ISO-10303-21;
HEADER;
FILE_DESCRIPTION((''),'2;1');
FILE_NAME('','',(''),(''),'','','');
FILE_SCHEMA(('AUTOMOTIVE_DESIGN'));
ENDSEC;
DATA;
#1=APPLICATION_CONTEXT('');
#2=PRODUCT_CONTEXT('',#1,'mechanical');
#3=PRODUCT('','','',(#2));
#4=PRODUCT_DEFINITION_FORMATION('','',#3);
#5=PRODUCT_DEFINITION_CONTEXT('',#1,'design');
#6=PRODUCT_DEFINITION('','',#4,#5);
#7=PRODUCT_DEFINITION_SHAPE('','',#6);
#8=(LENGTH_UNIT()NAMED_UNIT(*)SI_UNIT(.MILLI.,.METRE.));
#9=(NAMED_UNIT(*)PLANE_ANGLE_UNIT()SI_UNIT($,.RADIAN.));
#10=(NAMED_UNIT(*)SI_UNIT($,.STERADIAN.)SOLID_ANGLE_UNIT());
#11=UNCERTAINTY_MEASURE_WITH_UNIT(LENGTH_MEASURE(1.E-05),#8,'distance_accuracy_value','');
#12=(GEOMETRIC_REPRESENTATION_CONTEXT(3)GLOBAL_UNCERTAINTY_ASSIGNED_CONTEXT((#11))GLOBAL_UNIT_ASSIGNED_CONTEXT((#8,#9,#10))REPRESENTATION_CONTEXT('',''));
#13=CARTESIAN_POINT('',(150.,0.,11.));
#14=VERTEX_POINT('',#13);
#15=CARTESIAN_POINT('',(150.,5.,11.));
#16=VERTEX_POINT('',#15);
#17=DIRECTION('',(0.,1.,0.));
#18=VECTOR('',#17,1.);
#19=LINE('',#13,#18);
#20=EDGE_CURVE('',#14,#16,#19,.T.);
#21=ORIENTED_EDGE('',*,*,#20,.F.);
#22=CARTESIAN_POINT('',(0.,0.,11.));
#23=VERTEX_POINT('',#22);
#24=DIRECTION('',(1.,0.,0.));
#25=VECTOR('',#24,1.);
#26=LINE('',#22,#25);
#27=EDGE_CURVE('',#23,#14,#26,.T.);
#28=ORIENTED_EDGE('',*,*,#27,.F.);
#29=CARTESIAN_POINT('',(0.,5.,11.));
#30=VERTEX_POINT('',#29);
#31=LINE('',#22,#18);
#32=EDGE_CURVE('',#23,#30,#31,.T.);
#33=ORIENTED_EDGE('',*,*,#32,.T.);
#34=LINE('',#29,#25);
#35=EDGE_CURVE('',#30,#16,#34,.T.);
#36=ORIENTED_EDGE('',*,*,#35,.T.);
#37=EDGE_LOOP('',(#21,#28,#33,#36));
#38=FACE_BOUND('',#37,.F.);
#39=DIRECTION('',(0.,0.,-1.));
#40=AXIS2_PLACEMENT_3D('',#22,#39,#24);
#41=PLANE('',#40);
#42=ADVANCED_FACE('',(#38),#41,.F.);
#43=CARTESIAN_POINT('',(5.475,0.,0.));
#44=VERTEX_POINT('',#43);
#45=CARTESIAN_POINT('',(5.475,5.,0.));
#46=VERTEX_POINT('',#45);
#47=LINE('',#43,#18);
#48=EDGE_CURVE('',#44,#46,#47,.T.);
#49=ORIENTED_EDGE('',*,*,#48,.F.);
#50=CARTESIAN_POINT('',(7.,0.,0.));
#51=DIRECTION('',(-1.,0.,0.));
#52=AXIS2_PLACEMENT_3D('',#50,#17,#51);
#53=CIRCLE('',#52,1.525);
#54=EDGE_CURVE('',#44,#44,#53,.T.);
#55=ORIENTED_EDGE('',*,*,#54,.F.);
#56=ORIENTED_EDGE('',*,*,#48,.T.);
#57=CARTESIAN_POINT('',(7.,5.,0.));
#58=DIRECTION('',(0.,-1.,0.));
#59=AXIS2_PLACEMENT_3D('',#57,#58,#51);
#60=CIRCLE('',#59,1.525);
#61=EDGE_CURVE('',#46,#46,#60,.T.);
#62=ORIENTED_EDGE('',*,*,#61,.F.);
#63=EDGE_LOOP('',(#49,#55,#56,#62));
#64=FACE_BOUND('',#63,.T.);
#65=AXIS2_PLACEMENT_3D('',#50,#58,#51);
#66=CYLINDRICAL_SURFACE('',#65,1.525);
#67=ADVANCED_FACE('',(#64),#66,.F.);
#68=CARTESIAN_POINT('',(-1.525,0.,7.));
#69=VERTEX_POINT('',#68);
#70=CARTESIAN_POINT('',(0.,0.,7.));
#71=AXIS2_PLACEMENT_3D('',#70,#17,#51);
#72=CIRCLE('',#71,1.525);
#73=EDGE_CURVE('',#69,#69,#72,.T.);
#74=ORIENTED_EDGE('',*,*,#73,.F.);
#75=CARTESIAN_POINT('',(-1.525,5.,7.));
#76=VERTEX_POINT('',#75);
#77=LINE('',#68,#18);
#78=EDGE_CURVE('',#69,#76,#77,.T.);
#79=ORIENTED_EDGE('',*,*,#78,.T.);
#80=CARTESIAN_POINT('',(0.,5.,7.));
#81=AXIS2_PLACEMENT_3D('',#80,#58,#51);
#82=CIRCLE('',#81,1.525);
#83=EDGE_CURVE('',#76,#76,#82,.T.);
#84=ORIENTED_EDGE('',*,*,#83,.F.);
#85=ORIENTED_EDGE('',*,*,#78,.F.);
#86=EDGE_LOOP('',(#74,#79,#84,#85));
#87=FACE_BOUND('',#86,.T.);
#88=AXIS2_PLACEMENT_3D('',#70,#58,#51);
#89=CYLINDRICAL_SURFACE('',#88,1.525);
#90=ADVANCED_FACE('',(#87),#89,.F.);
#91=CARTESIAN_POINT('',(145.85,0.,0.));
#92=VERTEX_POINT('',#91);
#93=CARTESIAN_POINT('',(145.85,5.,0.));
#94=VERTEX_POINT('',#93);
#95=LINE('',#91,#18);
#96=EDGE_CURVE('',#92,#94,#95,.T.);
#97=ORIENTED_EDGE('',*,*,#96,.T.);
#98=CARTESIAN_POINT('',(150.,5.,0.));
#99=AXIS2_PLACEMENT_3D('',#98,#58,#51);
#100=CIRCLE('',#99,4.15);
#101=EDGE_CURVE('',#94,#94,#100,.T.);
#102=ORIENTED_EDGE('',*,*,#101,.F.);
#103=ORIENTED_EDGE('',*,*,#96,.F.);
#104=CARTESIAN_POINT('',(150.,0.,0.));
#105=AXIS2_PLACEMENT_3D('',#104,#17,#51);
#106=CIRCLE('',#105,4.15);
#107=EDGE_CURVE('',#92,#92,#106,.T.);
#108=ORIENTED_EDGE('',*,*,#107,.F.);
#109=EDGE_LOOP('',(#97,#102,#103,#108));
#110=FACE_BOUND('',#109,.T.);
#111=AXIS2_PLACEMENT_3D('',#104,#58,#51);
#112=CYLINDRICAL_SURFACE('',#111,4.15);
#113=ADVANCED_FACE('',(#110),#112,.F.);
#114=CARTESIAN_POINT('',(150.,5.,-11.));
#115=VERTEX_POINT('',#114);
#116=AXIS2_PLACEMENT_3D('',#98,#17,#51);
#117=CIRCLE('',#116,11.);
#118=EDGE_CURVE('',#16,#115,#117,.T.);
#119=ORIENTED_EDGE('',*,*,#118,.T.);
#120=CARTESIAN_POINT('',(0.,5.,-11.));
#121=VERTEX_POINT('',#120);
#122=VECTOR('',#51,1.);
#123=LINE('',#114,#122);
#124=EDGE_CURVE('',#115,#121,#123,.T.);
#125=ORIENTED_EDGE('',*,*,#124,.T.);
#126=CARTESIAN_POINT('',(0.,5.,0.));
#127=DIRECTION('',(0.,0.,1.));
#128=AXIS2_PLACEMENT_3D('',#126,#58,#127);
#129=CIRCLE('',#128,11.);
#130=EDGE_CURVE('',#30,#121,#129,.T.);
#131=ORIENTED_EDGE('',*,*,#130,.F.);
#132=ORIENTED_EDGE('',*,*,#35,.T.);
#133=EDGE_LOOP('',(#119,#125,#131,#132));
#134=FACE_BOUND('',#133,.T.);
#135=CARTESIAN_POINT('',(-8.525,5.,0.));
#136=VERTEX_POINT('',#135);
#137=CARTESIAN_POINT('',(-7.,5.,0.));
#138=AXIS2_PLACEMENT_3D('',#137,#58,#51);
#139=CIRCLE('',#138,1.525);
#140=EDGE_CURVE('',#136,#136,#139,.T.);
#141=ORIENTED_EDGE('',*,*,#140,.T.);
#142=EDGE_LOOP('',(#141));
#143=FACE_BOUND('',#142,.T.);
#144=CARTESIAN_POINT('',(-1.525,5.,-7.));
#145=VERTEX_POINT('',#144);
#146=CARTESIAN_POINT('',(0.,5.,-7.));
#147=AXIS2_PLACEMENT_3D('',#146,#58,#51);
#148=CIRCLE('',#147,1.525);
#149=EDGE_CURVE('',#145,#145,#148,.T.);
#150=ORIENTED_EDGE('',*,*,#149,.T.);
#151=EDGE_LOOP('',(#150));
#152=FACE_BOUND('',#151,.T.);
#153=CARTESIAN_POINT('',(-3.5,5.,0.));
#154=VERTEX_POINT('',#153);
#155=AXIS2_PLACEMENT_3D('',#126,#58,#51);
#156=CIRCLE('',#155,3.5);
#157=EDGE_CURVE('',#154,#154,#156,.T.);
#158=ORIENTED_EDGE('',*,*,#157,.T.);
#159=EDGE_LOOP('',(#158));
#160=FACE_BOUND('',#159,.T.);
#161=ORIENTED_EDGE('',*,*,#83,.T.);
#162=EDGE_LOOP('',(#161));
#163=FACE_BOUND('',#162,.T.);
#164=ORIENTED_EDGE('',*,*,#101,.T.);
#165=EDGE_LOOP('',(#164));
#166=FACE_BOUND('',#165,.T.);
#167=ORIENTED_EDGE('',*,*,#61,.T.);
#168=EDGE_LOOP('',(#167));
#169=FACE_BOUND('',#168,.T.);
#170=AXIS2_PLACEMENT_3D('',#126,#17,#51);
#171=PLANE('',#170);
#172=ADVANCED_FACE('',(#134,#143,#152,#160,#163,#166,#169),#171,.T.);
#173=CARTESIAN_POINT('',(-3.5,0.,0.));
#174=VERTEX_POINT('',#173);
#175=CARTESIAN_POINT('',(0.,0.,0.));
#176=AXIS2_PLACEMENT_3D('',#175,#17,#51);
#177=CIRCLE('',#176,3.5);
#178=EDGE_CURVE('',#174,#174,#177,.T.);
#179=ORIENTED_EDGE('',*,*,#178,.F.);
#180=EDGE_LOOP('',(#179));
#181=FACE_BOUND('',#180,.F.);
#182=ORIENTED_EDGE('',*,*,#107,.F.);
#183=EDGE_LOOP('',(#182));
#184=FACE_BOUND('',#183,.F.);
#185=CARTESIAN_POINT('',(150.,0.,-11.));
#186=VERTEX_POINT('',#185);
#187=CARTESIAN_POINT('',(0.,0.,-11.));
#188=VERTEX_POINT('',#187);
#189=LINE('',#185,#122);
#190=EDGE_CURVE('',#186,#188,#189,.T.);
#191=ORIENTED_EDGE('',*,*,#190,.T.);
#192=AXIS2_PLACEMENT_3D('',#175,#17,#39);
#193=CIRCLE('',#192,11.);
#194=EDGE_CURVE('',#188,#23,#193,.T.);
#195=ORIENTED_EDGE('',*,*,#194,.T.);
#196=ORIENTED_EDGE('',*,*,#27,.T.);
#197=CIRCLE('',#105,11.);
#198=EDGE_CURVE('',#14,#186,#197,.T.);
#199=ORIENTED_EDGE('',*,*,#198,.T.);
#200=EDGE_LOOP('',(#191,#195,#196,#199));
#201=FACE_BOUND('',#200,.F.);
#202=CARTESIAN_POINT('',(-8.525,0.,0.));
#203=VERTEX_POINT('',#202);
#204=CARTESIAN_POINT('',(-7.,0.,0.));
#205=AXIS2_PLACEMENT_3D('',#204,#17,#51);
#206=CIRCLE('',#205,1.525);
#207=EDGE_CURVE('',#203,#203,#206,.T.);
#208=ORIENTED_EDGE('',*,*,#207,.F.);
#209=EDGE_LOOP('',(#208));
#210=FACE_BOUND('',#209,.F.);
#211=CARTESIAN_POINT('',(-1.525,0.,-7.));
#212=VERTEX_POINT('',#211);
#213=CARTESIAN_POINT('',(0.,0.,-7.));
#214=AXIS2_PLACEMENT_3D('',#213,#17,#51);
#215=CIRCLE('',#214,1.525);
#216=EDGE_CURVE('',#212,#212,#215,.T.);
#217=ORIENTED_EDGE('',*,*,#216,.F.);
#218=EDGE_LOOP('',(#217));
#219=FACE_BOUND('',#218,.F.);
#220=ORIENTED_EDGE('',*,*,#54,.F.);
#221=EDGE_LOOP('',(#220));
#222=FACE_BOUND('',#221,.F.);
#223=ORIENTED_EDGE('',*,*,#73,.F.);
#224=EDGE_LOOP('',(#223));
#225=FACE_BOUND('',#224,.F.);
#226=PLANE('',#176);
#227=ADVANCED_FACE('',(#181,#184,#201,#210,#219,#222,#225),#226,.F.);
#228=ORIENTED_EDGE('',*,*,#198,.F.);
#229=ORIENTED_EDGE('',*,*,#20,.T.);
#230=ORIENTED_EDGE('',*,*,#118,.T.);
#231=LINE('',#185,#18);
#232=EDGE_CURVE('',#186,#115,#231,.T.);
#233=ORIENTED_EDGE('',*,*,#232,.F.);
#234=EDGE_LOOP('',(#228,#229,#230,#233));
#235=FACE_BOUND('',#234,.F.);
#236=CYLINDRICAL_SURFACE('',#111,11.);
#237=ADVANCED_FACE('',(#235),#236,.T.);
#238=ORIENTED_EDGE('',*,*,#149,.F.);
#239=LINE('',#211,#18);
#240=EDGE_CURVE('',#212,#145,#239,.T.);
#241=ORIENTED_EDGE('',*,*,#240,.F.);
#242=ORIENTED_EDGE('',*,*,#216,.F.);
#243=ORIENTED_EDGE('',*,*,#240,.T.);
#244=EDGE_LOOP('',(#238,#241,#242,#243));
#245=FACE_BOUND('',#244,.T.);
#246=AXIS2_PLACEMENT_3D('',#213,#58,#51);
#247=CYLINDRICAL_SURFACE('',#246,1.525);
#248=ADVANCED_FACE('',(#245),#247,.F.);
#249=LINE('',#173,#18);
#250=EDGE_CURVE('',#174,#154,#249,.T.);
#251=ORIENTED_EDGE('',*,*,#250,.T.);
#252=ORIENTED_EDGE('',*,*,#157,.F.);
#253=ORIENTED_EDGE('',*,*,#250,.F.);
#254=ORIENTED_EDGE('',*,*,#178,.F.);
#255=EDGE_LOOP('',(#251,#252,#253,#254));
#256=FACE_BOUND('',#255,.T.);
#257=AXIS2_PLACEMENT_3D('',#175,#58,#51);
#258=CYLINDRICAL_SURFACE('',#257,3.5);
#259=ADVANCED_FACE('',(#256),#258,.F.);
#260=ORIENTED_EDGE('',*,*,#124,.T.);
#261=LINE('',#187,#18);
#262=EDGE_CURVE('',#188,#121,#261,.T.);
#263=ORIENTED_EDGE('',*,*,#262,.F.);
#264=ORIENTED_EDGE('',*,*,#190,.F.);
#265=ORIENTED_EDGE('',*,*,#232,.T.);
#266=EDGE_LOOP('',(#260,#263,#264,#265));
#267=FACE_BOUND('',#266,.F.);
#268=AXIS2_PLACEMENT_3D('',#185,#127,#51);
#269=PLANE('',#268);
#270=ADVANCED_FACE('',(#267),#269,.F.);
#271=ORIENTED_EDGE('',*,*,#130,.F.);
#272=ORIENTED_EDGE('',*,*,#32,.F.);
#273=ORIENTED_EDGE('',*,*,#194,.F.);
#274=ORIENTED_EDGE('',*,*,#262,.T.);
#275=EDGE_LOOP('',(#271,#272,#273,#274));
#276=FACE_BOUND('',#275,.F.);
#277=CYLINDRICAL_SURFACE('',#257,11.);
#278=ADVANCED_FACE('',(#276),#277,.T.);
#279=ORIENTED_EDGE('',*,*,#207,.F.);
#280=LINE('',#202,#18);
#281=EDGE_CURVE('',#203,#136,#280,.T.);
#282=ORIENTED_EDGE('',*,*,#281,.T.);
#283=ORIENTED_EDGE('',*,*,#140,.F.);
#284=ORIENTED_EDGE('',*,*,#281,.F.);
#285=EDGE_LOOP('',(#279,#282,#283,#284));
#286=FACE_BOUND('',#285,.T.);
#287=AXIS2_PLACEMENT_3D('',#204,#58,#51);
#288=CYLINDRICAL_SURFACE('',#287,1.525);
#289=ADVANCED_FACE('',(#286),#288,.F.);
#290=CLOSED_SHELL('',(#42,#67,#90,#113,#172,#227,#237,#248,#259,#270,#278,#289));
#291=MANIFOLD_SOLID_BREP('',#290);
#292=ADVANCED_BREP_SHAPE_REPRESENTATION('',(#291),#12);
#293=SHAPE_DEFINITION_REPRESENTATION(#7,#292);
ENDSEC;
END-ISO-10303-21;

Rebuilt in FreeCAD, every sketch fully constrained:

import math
import FreeCAD as App
import Part
import Sketcher

V = App.Vector

doc = App.newDocument("Part")
body = doc.addObject("PartDesign::Body", "Body")

sketch1 = body.newObject("Sketcher::SketchObject", "Sketch")
sketch1.AttachmentSupport = (doc.getObject("XZ_Plane"), [""])
sketch1.MapMode = "FlatFace"
sketch1.addGeometry([
    Part.ArcOfCircle(Part.Circle(V(0, 0, 0), V(0, 0, 1), 11), math.radians(90), math.radians(270)),
    Part.LineSegment(V(0, 11, 0), V(150, 11, 0)),
    Part.ArcOfCircle(Part.Circle(V(150, 0, 0), V(0, 0, 1), 11), math.radians(-90), math.radians(90)),
    Part.LineSegment(V(150, -11, 0), V(0, -11, 0)),
    Part.Circle(V(0, -7, 0), V(0, 0, 1), 1.5),
    Part.Circle(V(-7, 0, 0), V(0, 0, 1), 1.5),
    Part.Circle(V(0, 7, 0), V(0, 0, 1), 1.5),
    Part.Circle(V(7, 0, 0), V(0, 0, 1), 1.5),
    Part.Circle(V(0, 0, 0), V(0, 0, 1), 3.5),
    Part.Circle(V(150, 0, 0), V(0, 0, 1), 4.2),
], False)
sketch1.addConstraint([
    Sketcher.Constraint("Tangent", 0, 1, 1, 1),
    Sketcher.Constraint("Tangent", 1, 2, 2, 2),
    Sketcher.Constraint("Tangent", 2, 1, 3, 1),
    Sketcher.Constraint("Tangent", 3, 2, 0, 2),
    Sketcher.Constraint("Horizontal", 1),
    Sketcher.Constraint("Horizontal", 3),
    Sketcher.Constraint("Coincident", 0, 3, -1, 1),
    Sketcher.Constraint("Coincident", 8, 3, -1, 1),
    Sketcher.Constraint("Coincident", 9, 3, 2, 3),
    Sketcher.Constraint("Equal", 4, 5),
    Sketcher.Constraint("Equal", 5, 6),
    Sketcher.Constraint("Equal", 6, 7),
    Sketcher.Constraint("Symmetric", 4, 3, 6, 3, -1, 1),
    Sketcher.Constraint("Symmetric", 5, 3, 7, 3, -1, 1),
    Sketcher.Constraint("PointOnObject", 4, 3, -2),
    Sketcher.Constraint("PointOnObject", 5, 3, -1),
    Sketcher.Constraint("Diameter", 8, 7.0),
    Sketcher.Constraint("Radius", 0, 11.0),
    Sketcher.Constraint("Diameter", 9, 8.3),
    Sketcher.Constraint("Diameter", 4, 3.05),
    Sketcher.Constraint("DistanceX", 1, 1, 1, 2, 150.0),
    Sketcher.Constraint("DistanceY", 4, 3, -1, 1, 7.0),
    Sketcher.Constraint("DistanceX", 5, 3, -1, 1, 7.0),
])
pad1 = body.newObject("PartDesign::Pad", "Pad")
pad1.Profile = sketch1
pad1.Length = 5
pad1.Reversed = True

doc.recompute()
